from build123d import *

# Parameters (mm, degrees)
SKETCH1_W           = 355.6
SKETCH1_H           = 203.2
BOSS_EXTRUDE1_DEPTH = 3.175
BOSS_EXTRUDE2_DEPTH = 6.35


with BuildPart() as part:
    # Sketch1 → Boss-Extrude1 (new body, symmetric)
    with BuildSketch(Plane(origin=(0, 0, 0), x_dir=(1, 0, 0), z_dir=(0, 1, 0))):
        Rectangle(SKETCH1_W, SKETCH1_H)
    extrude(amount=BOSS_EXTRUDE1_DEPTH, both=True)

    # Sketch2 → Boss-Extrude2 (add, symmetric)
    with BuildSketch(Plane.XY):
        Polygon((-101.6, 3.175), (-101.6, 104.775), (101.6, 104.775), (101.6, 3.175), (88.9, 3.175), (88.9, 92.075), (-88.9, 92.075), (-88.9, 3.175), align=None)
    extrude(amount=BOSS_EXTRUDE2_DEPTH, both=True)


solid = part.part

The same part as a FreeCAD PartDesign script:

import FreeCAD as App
import Part
import Sketcher
Q = App.Units.Quantity

doc = App.newDocument("Part")
body = doc.addObject("PartDesign::Body", "Body")

# Sketch on XZ plane
sketch1 = doc.addObject("Sketcher::SketchObject", "Sketch")
body.addObject(sketch1)
sketch1.AttachmentSupport = (doc.XZ_Plane, [""])
sketch1.MapMode = "FlatFace"
sketch1.addGeometry([
    Part.LineSegment(App.Vector(-177.8, -101.6, 0), App.Vector(-177.8, 101.6, 0)),
    Part.LineSegment(App.Vector(-177.8, 101.6, 0), App.Vector(177.8, 101.6, 0)),
    Part.LineSegment(App.Vector(177.8, 101.6, 0), App.Vector(177.8, -101.6, 0)),
    Part.LineSegment(App.Vector(177.8, -101.6, 0), App.Vector(-177.8, -101.6, 0)),
], False)
sketch1.addConstraint([
    Sketcher.Constraint("Coincident", 0, 2, 1, 1),
    Sketcher.Constraint("Coincident", 1, 2, 2, 1),
    Sketcher.Constraint("Coincident", 2, 2, 3, 1),
    Sketcher.Constraint("Coincident", 3, 2, 0, 1),
    Sketcher.Constraint("Vertical", 0),
    Sketcher.Constraint("Horizontal", 1),
    Sketcher.Constraint("Vertical", 2),
    Sketcher.Constraint("Horizontal", 3),
    Sketcher.Constraint("Symmetric", 0, 2, 2, 2, -1, 1),
    Sketcher.Constraint("DistanceX", 1, 1, 1, 2, Q("14 in")),
    Sketcher.Constraint("DistanceY", 0, 1, 0, 2, Q("8 in")),
])
pad1 = doc.addObject("PartDesign::Pad", "Pad")
body.addObject(pad1)
pad1.Profile = sketch1
pad1.Length = Q("0.25 in")
pad1.Midplane = True

# Sketch on XY plane
sketch2 = doc.addObject("Sketcher::SketchObject", "Sketch001")
body.addObject(sketch2)
sketch2.AttachmentSupport = (doc.XY_Plane, [""])
sketch2.MapMode = "FlatFace"
sketch2.addGeometry([
    Part.LineSegment(App.Vector(-101.6, 104.775, 0), App.Vector(-101.6, 3.175, 0)),  # 0
    Part.LineSegment(App.Vector(-101.6, 3.175, 0), App.Vector(-88.9, 3.175, 0)),  # 1
    Part.LineSegment(App.Vector(-88.9, 3.175, 0), App.Vector(-88.9, 92.075, 0)),  # 2
    Part.LineSegment(App.Vector(-88.9, 92.075, 0), App.Vector(88.9, 92.075, 0)),  # 3
    Part.LineSegment(App.Vector(88.9, 92.075, 0), App.Vector(88.9, 3.175, 0)),  # 4
    Part.LineSegment(App.Vector(88.9, 3.175, 0), App.Vector(101.6, 3.175, 0)),  # 5
    Part.LineSegment(App.Vector(101.6, 3.175, 0), App.Vector(101.6, 104.775, 0)),  # 6
    Part.LineSegment(App.Vector(101.6, 104.775, 0), App.Vector(-101.6, 104.775, 0)),  # 7
], False)
sketch2.addConstraint([
    Sketcher.Constraint("Coincident", 0, 2, 1, 1),
    Sketcher.Constraint("Coincident", 1, 2, 2, 1),
    Sketcher.Constraint("Coincident", 2, 2, 3, 1),
    Sketcher.Constraint("Coincident", 3, 2, 4, 1),
    Sketcher.Constraint("Coincident", 4, 2, 5, 1),
    Sketcher.Constraint("Coincident", 5, 2, 6, 1),
    Sketcher.Constraint("Coincident", 6, 2, 7, 1),
    Sketcher.Constraint("Coincident", 7, 2, 0, 1),
    Sketcher.Constraint("Vertical", 0),
    Sketcher.Constraint("Horizontal", 1),
    Sketcher.Constraint("Vertical", 2),
    Sketcher.Constraint("Horizontal", 3),
    Sketcher.Constraint("Vertical", 4),
    Sketcher.Constraint("Horizontal", 5),
    Sketcher.Constraint("Vertical", 6),
    Sketcher.Constraint("Horizontal", 7),
    Sketcher.Constraint("Symmetric", 1, 2, 4, 2, -2),
    Sketcher.Constraint("Equal", 1, 5),
    Sketcher.Constraint("DistanceX", 3, 1, 3, 2, Q("7 in")),
    Sketcher.Constraint("DistanceX", 7, 2, 7, 1, Q("8 in")),
    Sketcher.Constraint("DistanceY", 0, 2, 0, 1, Q("4 in")),
    Sketcher.Constraint("DistanceY", 2, 1, 2, 2, Q("3.5 in")),
    Sketcher.Constraint("DistanceY", -1, 1, 0, 2, Q("0.125 in")),
])
pad2 = doc.addObject("PartDesign::Pad", "Pad001")
body.addObject(pad2)
pad2.Profile = sketch2
pad2.Length = Q("0.5 in")
pad2.Midplane = True

doc.recompute()
